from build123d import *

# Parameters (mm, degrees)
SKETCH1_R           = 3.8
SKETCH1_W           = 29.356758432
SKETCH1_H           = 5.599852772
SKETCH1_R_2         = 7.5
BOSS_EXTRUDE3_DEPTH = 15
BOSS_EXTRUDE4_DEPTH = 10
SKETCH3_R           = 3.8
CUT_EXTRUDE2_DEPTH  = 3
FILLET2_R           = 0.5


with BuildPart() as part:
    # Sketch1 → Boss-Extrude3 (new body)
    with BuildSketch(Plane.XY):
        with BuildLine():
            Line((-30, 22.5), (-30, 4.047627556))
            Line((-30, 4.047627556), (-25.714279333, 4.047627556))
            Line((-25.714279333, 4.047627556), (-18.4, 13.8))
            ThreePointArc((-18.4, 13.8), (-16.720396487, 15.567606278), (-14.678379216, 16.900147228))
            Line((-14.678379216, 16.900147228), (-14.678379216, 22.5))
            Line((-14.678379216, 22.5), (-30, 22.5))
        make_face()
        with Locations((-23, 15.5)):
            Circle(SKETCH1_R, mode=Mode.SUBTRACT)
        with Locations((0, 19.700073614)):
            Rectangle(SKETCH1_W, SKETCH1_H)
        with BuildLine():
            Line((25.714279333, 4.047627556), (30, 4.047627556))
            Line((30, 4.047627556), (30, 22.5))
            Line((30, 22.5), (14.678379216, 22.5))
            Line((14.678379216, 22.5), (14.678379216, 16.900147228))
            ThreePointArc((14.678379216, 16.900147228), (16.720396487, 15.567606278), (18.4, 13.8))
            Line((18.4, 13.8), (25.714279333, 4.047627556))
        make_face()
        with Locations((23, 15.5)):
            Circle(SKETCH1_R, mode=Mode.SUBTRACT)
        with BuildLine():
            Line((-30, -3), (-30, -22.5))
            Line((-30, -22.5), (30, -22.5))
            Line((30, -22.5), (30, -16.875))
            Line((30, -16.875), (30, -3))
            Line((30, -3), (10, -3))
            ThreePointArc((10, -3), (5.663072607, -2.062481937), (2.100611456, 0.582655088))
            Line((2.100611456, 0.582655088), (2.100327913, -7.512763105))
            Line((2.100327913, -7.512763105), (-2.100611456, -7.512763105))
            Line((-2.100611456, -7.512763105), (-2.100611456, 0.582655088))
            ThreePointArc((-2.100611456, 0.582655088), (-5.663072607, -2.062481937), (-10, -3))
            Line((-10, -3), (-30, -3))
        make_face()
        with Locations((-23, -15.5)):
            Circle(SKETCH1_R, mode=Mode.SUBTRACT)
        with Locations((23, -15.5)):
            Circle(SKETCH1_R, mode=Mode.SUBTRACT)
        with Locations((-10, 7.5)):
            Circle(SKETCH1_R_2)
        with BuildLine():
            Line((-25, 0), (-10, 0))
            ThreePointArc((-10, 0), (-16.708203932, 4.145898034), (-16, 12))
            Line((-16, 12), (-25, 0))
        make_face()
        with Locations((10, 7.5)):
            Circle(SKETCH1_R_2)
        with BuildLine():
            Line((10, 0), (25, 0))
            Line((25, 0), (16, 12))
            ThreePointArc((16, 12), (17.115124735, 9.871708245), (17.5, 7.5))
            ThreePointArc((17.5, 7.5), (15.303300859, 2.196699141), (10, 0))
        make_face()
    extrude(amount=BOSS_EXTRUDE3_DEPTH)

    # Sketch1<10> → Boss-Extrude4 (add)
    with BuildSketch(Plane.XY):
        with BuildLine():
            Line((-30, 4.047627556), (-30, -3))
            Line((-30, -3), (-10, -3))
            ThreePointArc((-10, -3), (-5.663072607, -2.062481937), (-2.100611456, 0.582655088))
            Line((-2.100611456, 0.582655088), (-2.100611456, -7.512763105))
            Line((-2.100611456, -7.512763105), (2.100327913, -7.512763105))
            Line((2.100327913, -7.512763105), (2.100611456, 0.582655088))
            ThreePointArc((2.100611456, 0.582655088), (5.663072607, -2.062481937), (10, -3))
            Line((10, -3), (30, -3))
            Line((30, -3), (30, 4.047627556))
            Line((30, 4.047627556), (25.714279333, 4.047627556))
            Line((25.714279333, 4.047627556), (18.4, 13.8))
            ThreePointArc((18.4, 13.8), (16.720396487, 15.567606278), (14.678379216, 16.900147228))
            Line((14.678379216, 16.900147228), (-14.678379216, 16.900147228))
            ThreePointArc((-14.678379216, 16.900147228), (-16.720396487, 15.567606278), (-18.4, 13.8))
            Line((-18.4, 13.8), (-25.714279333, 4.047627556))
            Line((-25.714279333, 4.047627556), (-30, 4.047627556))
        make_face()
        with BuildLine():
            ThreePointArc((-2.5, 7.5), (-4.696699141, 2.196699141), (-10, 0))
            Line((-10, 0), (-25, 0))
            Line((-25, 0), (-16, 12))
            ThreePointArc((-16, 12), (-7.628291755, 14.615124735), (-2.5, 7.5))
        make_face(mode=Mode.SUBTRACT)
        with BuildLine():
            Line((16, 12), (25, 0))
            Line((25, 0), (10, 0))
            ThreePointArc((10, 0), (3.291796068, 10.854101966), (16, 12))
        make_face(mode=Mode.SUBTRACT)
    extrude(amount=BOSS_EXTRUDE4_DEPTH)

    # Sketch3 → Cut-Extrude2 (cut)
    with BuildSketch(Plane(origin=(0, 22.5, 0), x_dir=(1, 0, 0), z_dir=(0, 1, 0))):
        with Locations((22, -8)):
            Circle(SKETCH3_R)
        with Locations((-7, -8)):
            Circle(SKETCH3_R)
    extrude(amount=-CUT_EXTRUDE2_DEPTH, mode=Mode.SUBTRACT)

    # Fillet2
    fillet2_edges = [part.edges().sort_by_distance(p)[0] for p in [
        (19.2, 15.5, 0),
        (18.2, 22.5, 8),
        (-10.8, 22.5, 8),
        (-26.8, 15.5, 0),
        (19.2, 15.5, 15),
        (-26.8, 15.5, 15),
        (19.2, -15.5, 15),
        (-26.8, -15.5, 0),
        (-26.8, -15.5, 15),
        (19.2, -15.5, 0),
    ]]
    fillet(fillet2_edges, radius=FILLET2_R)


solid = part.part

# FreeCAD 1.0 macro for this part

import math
import FreeCAD as App
import Part
import Sketcher

V = App.Vector
Q = App.Units.Quantity


def edges_at(feature, points):
    """Names of the edges that pass closest to the given points."""
    edges = feature.Shape.Edges
    near = lambda p: min(range(len(edges)), key=lambda i: edges[i].distToShape(Part.Vertex(*p))[0])
    return sorted({f"Edge{near(p) + 1}" for p in points})

doc = App.newDocument("Part")
body = doc.addObject("PartDesign::Body", "Body")
body.AllowCompound = True

sketch1 = body.newObject("Sketcher::SketchObject", "Sketch")
sketch1.AttachmentSupport = (doc.getObject("XY_Plane"), [""])
sketch1.MapMode = "FlatFace"
sketch1.addGeometry([
    Part.LineSegment(V(-30, 22.5, 0), V(-30, 4, 0)),
    Part.LineSegment(V(-30, 4, 0), V(-25.7, 4, 0)),
    Part.LineSegment(V(-25.7, 4, 0), V(-18.4, 13.8, 0)),
    Part.ArcOfCircle(Part.Circle(V(-10, 7.5, 0), V(0, 0, 1), 10.5), math.radians(116), math.radians(143)),
    Part.LineSegment(V(-14.7, 16.9, 0), V(14.7, 16.9, 0)),
    Part.ArcOfCircle(Part.Circle(V(10, 7.5, 0), V(0, 0, 1), 10.5), math.radians(37), math.radians(64)),
    Part.LineSegment(V(18.4, 13.8, 0), V(25.7, 4, 0)),
    Part.LineSegment(V(25.7, 4, 0), V(30, 4, 0)),
    Part.LineSegment(V(30, 4, 0), V(30, 22.5, 0)),
    Part.LineSegment(V(30, 22.5, 0), V(-30, 22.5, 0)),
    Part.Circle(V(-23, 15.5, 0), V(0, 0, 1), 3.8),
    Part.Circle(V(23, 15.5, 0), V(0, 0, 1), 3.8),
    Part.LineSegment(V(-30, -3, 0), V(-30, -22.5, 0)),
    Part.LineSegment(V(-30, -22.5, 0), V(30, -22.5, 0)),
    Part.LineSegment(V(30, -22.5, 0), V(30, -3, 0)),
    Part.LineSegment(V(30, -3, 0), V(10, -3, 0)),
    Part.ArcOfCircle(Part.Circle(V(10, 7.5, 0), V(0, 0, 1), 10.5), math.radians(-139), math.radians(-90)),
    Part.LineSegment(V(2.1, 0.6, 0), V(2.1, -7.5, 0)),
    Part.LineSegment(V(2.1, -7.5, 0), V(-2.1, -7.5, 0)),
    Part.LineSegment(V(-2.1, -7.5, 0), V(-2.1, 0.6, 0)),
    Part.ArcOfCircle(Part.Circle(V(-10, 7.5, 0), V(0, 0, 1), 10.5), math.radians(-90), math.radians(-41)),
    Part.LineSegment(V(-10, -3, 0), V(-30, -3, 0)),
    Part.Circle(V(-23, -15.5, 0), V(0, 0, 1), 3.8),
    Part.Circle(V(23, -15.5, 0), V(0, 0, 1), 3.8),
    Part.LineSegment(V(-16, 12, 0), V(-25, 0, 0)),
    Part.LineSegment(V(-25, 0, 0), V(-10, 0, 0)),
    Part.ArcOfCircle(Part.Circle(V(-10, 7.5, 0), V(0, 0, 1), 7.5), math.radians(-90), math.radians(143)),
    Part.ArcOfCircle(Part.Circle(V(10, 7.5, 0), V(0, 0, 1), 7.5), math.radians(37), math.radians(270)),
    Part.LineSegment(V(10, 0, 0), V(25, 0, 0)),
    Part.LineSegment(V(25, 0, 0), V(16, 12, 0)),
], False)
sketch1.addConstraint([
    Sketcher.Constraint("Coincident", 0, 2, 1, 1),
    Sketcher.Constraint("Coincident", 1, 2, 2, 1),
    Sketcher.Constraint("Tangent", 2, 2, 3, 2),
    Sketcher.Constraint("Coincident", 3, 1, 4, 1),
    Sketcher.Constraint("Coincident", 4, 2, 5, 2),
    Sketcher.Constraint("Tangent", 5, 1, 6, 1),
    Sketcher.Constraint("Coincident", 6, 2, 7, 1),
    Sketcher.Constraint("Coincident", 7, 2, 8, 1),
    Sketcher.Constraint("Coincident", 8, 2, 9, 1),
    Sketcher.Constraint("Coincident", 9, 2, 0, 1),
    Sketcher.Constraint("Coincident", 12, 2, 13, 1),
    Sketcher.Constraint("Coincident", 13, 2, 14, 1),
    Sketcher.Constraint("Coincident", 14, 2, 15, 1),
    Sketcher.Constraint("Tangent", 15, 2, 16, 2),
    Sketcher.Constraint("Coincident", 16, 1, 17, 1),
    Sketcher.Constraint("Coincident", 17, 2, 18, 1),
    Sketcher.Constraint("Coincident", 18, 2, 19, 1),
    Sketcher.Constraint("Coincident", 19, 2, 20, 2),
    Sketcher.Constraint("Tangent", 20, 1, 21, 1),
    Sketcher.Constraint("Coincident", 21, 2, 12, 1),
    Sketcher.Constraint("Coincident", 24, 2, 25, 1),
    Sketcher.Constraint("Tangent", 25, 2, 26, 1),
    Sketcher.Constraint("Tangent", 26, 2, 24, 1),
    Sketcher.Constraint("Tangent", 27, 2, 28, 1),
    Sketcher.Constraint("Coincident", 28, 2, 29, 1),
    Sketcher.Constraint("Tangent", 29, 2, 27, 1),
    Sketcher.Constraint("Vertical", 0),
    Sketcher.Constraint("Horizontal", 1),
    Sketcher.Constraint("Horizontal", 4),
    Sketcher.Constraint("Horizontal", 7),
    Sketcher.Constraint("Vertical", 8),
    Sketcher.Constraint("Horizontal", 9),
    Sketcher.Constraint("Vertical", 12),
    Sketcher.Constraint("Horizontal", 13),
    Sketcher.Constraint("Vertical", 14),
    Sketcher.Constraint("Horizontal", 15),
    Sketcher.Constraint("Horizontal", 18),
    Sketcher.Constraint("Vertical", 19),
    Sketcher.Constraint("Horizontal", 21),
    Sketcher.Constraint("Horizontal", 25),
    Sketcher.Constraint("Horizontal", 28),
    Sketcher.Constraint("Coincident", 16, 3, 5, 3),
    Sketcher.Constraint("Coincident", 20, 3, 3, 3),
    Sketcher.Constraint("Coincident", 26, 3, 3, 3),
    Sketcher.Constraint("Coincident", 27, 3, 5, 3),
    Sketcher.Constraint("Equal", 3, 5),
    Sketcher.Constraint("Equal", 10, 11),
    Sketcher.Constraint("Equal", 5, 16),
    Sketcher.Constraint("Equal", 16, 20),
    Sketcher.Constraint("Equal", 11, 22),
    Sketcher.Constraint("Equal", 22, 23),
    Sketcher.Constraint("Equal", 26, 27),
    Sketcher.Constraint("Symmetric", 11, 3, 22, 3, -1, 1),
    Sketcher.Constraint("Symmetric", 10, 3, 23, 3, -1, 1),
    Sketcher.Constraint("Symmetric", 8, 2, 12, 2, -1, 1),
    Sketcher.Constraint("Symmetric", 25, 2, 27, 2, -1, 1),
    Sketcher.Constraint("Symmetric", 10, 3, 11, 3, -2),
    Sketcher.Constraint("Symmetric", 2, 2, 5, 1, -2),
    Sketcher.Constraint("Symmetric", 0, 2, 7, 2, -2),
    Sketcher.Constraint("Parallel", 2, 24),
    Sketcher.Constraint("Parallel", 6, 29),
    Sketcher.Constraint("Horizontal", 16, 1, 19, 2),
    Sketcher.Constraint("Vertical", 8, 2, 13, 2),
    Sketcher.Constraint("Diameter", 10, Q("7.6 mm")),
    Sketcher.Constraint("Radius", 3, Q("10.5 mm")),
    Sketcher.Constraint("Radius", 26, Q("7.5 mm")),
    Sketcher.Constraint("DistanceX", 9, 2, 9, 1, Q("60 mm")),
    Sketcher.Constraint("DistanceX", 15, 2, 15, 1, Q("20 mm")),
    Sketcher.Constraint("DistanceX", 25, 1, 25, 2, Q("15 mm")),
    Sketcher.Constraint("DistanceY", 12, 2, 12, 1, Q("19.5 mm")),
    Sketcher.Constraint("DistanceX", 10, 3, -1, 1, Q("23 mm")),
    Sketcher.Constraint("DistanceY", 3, 3, 10, 3, Q("8 mm")),
    Sketcher.Constraint("DistanceX", 1, 1, 1, 2, Q("4.285721 mm")),
    Sketcher.Constraint("DistanceX", 4, 1, 4, 2, Q("29.356758 mm")),
    Sketcher.Constraint("DistanceX", 18, 2, 18, 1, Q("4.200939 mm")),
    Sketcher.Constraint("DistanceY", 19, 1, 19, 2, Q("8.095418 mm")),
    Sketcher.Constraint("DistanceX", -1, 1, 16, 1, Q("2.100611 mm")),
])
pad1 = body.newObject("PartDesign::Pad", "Pad")
pad1.Profile = sketch1
pad1.Length = 15

sketch2 = body.newObject("Sketcher::SketchObject", "Sketch001")
sketch2.AttachmentSupport = (doc.getObject("XY_Plane"), [""])
sketch2.MapMode = "FlatFace"
sketch2.addGeometry([
    Part.LineSegment(V(-30, 4, 0), V(-30, -3, 0)),
    Part.LineSegment(V(-30, -3, 0), V(-10, -3, 0)),
    Part.ArcOfCircle(Part.Circle(V(-10, 7.5, 0), V(0, 0, 1), 10.5), math.radians(-90), math.radians(-41)),
    Part.LineSegment(V(-2.1, 0.6, 0), V(-2.1, -7.5, 0)),
    Part.LineSegment(V(-2.1, -7.5, 0), V(2.1, -7.5, 0)),
    Part.LineSegment(V(2.1, -7.5, 0), V(2.1, 0.6, 0)),
    Part.ArcOfCircle(Part.Circle(V(10, 7.5, 0), V(0, 0, 1), 10.5), math.radians(-139), math.radians(-90)),
    Part.LineSegment(V(10, -3, 0), V(30, -3, 0)),
    Part.LineSegment(V(30, -3, 0), V(30, 4, 0)),
    Part.LineSegment(V(30, 4, 0), V(25.7, 4, 0)),
    Part.LineSegment(V(25.7, 4, 0), V(18.4, 13.8, 0)),
    Part.ArcOfCircle(Part.Circle(V(10, 7.5, 0), V(0, 0, 1), 10.5), math.radians(37), math.radians(64)),
    Part.LineSegment(V(14.7, 16.9, 0), V(-14.7, 16.9, 0)),
    Part.ArcOfCircle(Part.Circle(V(-10, 7.5, 0), V(0, 0, 1), 10.5), math.radians(116), math.radians(143)),
    Part.LineSegment(V(-18.4, 13.8, 0), V(-25.7, 4, 0)),
    Part.LineSegment(V(-25.7, 4, 0), V(-30, 4, 0)),
    Part.ArcOfCircle(Part.Circle(V(-10, 7.5, 0), V(0, 0, 1), 7.5), math.radians(0), math.radians(143)),
    Part.ArcOfCircle(Part.Circle(V(-10, 7.5, 0), V(0, 0, 1), 7.5), math.radians(-90), math.radians(0)),
    Part.LineSegment(V(-10, 0, 0), V(-25, 0, 0)),
    Part.LineSegment(V(-25, 0, 0), V(-16, 12, 0)),
    Part.ArcOfCircle(Part.Circle(V(10, 7.5, 0), V(0, 0, 1), 7.5), math.radians(37), math.radians(270)),
    Part.LineSegment(V(16, 12, 0), V(25, 0, 0)),
    Part.LineSegment(V(25, 0, 0), V(10, 0, 0)),
], False)
sketch2.addConstraint([
    Sketcher.Constraint("Coincident", 0, 2, 1, 1),
    Sketcher.Constraint("Tangent", 1, 2, 2, 1),
    Sketcher.Constraint("Coincident", 2, 2, 3, 1),
    Sketcher.Constraint("Coincident", 3, 2, 4, 1),
    Sketcher.Constraint("Coincident", 4, 2, 5, 1),
    Sketcher.Constraint("Coincident", 5, 2, 6, 1),
    Sketcher.Constraint("Tangent", 6, 2, 7, 1),
    Sketcher.Constraint("Coincident", 7, 2, 8, 1),
    Sketcher.Constraint("Coincident", 8, 2, 9, 1),
    Sketcher.Constraint("Coincident", 9, 2, 10, 1),
    Sketcher.Constraint("Tangent", 10, 2, 11, 1),
    Sketcher.Constraint("Coincident", 11, 2, 12, 1),
    Sketcher.Constraint("Coincident", 12, 2, 13, 1),
    Sketcher.Constraint("Tangent", 13, 2, 14, 1),
    Sketcher.Constraint("Coincident", 14, 2, 15, 1),
    Sketcher.Constraint("Coincident", 15, 2, 0, 1),
    Sketcher.Constraint("Tangent", 16, 1, 17, 2),
    Sketcher.Constraint("Tangent", 17, 1, 18, 1),
    Sketcher.Constraint("Coincident", 18, 2, 19, 1),
    Sketcher.Constraint("Tangent", 19, 2, 16, 2),
    Sketcher.Constraint("Tangent", 20, 1, 21, 1),
    Sketcher.Constraint("Coincident", 21, 2, 22, 1),
    Sketcher.Constraint("Tangent", 22, 2, 20, 2),
    Sketcher.Constraint("Vertical", 0),
    Sketcher.Constraint("Horizontal", 1),
    Sketcher.Constraint("Vertical", 3),
    Sketcher.Constraint("Horizontal", 4),
    Sketcher.Constraint("Horizontal", 7),
    Sketcher.Constraint("Vertical", 8),
    Sketcher.Constraint("Horizontal", 9),
    Sketcher.Constraint("Horizontal", 12),
    Sketcher.Constraint("Horizontal", 15),
    Sketcher.Constraint("Horizontal", 18),
    Sketcher.Constraint("Horizontal", 22),
    Sketcher.Constraint("Coincident", 11, 3, 6, 3),
    Sketcher.Constraint("Coincident", 13, 3, 2, 3),
    Sketcher.Constraint("Coincident", 16, 3, 2, 3),
    Sketcher.Constraint("Coincident", 20, 3, 6, 3),
    Sketcher.Constraint("Equal", 2, 6),
    Sketcher.Constraint("Equal", 6, 11),
    Sketcher.Constraint("Equal", 11, 13),
    Sketcher.Constraint("Equal", 16, 17),
    Sketcher.Constraint("Equal", 17, 20),
    Sketcher.Constraint("Symmetric", 18, 2, 21, 2, -1, 1),
    Sketcher.Constraint("Symmetric", 2, 3, 6, 3, -2),
    Sketcher.Constraint("Symmetric", 9, 2, 14, 2, -2),
    Sketcher.Constraint("Parallel", 14, 19),
    Sketcher.Constraint("Horizontal", 2, 2, 5, 2),
    Sketcher.Constraint("Horizontal", 20, 3, 16, 1),
    Sketcher.Constraint("Equal", 1, 7),
    Sketcher.Constraint("Radius", 2, Q("10.5 mm")),
    Sketcher.Constraint("Radius", 16, Q("7.5 mm")),
    Sketcher.Constraint("DistanceX", 1, 1, 1, 2, Q("20 mm")),
    Sketcher.Constraint("DistanceX", 18, 2, 18, 1, Q("15 mm")),
    Sketcher.Constraint("DistanceX", 2, 3, -1, 1, Q("10 mm")),
    Sketcher.Constraint("DistanceX", 4, 1, 4, 2, Q("4.200939 mm")),
    Sketcher.Constraint("DistanceX", 9, 2, 9, 1, Q("4.285721 mm")),
    Sketcher.Constraint("DistanceX", 12, 2, 12, 1, Q("29.356758 mm")),
    Sketcher.Constraint("DistanceY", 3, 2, 3, 1, Q("8.095418 mm")),
    Sketcher.Constraint("DistanceX", 2, 2, -1, 1, Q("2.100611 mm")),
])
pad2 = body.newObject("PartDesign::Pad", "Pad001")
pad2.Profile = sketch2
pad2.Length = 10

sketch3 = body.newObject("Sketcher::SketchObject", "Sketch002")
sketch3.AttachmentSupport = (doc.getObject("XZ_Plane"), [""])
sketch3.MapMode = "FlatFace"
sketch3.AttachmentOffset = App.Placement(V(0, 0, -22.5), App.Rotation())
sketch3.addGeometry([
    Part.Circle(V(22, 8, 0), V(0, 0, 1), 3.8),
    Part.Circle(V(-7, 8, 0), V(0, 0, 1), 3.8),
], False)
sketch3.addConstraint([
    Sketcher.Constraint("Equal", 0, 1),
    Sketcher.Constraint("Horizontal", 0, 3, 1, 3),
    Sketcher.Constraint("Diameter", 0, Q("7.6 mm")),
    Sketcher.Constraint("DistanceX", -1, 1, 0, 3, Q("22 mm")),
    Sketcher.Constraint("DistanceY", -1, 1, 0, 3, Q("8 mm")),
    Sketcher.Constraint("DistanceX", 1, 3, -1, 1, Q("7 mm")),
])
pocket1 = body.newObject("PartDesign::Pocket", "Pocket")
pocket1.Profile = sketch3
pocket1.Length = 3
pocket1.Reversed = True
doc.recompute()

fillet = body.newObject("PartDesign::Fillet", "Fillet")
fillet.Base = (pocket1, edges_at(pocket1, [
    (19.2, 15.5, 0),
    (18.2, 22.5, 8),
    (-10.8, 22.5, 8),
    (-26.8, 15.5, 0),
    (19.2, 15.5, 15),
    (-26.8, 15.5, 15),
    (19.2, -15.5, 15),
    (-26.8, -15.5, 0),
    (-26.8, -15.5, 15),
    (19.2, -15.5, 0),
]))
fillet.Radius = 0.5

doc.recompute()
